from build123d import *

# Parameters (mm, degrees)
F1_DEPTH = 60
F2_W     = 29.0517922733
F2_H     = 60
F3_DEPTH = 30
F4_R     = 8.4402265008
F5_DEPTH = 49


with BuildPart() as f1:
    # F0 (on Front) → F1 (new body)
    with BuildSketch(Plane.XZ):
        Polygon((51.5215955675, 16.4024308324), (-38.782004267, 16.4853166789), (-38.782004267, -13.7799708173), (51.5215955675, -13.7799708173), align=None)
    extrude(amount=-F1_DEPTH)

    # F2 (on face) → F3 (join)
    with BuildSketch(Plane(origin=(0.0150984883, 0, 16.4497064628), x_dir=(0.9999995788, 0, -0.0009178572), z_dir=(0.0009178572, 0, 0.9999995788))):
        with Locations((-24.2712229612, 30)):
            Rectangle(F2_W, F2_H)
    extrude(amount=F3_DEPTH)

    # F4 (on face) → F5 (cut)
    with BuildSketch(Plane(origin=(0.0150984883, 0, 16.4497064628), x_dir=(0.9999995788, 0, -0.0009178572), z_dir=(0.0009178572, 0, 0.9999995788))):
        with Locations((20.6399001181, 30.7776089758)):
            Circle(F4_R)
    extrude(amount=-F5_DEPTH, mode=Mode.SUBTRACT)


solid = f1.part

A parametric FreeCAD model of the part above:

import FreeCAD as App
import Part
import Sketcher
from FreeCAD import Vector


def add_polygon(sketch, points):
    """Adds a closed chain of lines whose ends are joined by coincident constraints."""
    first, n = sketch.GeometryCount, len(points)
    for a, b in zip(points, points[1:] + points[:1]):
        sketch.addGeometry(Part.LineSegment(App.Vector(*a, 0), App.Vector(*b, 0)), False)
    for i in range(n):
        sketch.addConstraint(Sketcher.Constraint("Coincident", first + i, 2, first + (i + 1) % n, 1))

doc = App.newDocument("Part")
body = doc.addObject("PartDesign::Body", "Body")

sketch1 = body.newObject("Sketcher::SketchObject", "Sketch")
sketch1.AttachmentSupport = (doc.getObject("XZ_Plane"), [""])
sketch1.MapMode = "FlatFace"
add_polygon(sketch1, [(52, 16), (-39, 16), (-39, -14), (52, -14)])
sketch1.addConstraint([
    Sketcher.Constraint("Vertical", 1),
    Sketcher.Constraint("Horizontal", 2),
    Sketcher.Constraint("Vertical", 3),
    Sketcher.Constraint("DistanceX", 2, 1, 2, 2, 90.3036),
    Sketcher.Constraint("DistanceY", 3, 1, 3, 2, 30.182402),
    Sketcher.Constraint("DistanceY", 1, 2, 1, 1, 30.265287),
    Sketcher.Constraint("DistanceY", 1, 2, -1, 1, 13.779971),
    Sketcher.Constraint("DistanceX", 0, 2, -1, 1, 38.782004),
])
pad1 = body.newObject("PartDesign::Pad", "Pad")
pad1.Profile = sketch1
pad1.Length = 60
pad1.Reversed = True

sketch2 = body.newObject("Sketcher::SketchObject", "Sketch001")
sketch2.Placement = App.Placement(Vector(0.015098, 0, 16.449706), App.Rotation(Vector(0.999999579, 0, -0.000917857), Vector(0, 1, 0), Vector(0.000917857, 0, 0.999999579), "ZXY"))
add_polygon(sketch2, [(-39, 60), (-39, 0), (-10, 0), (-10, 60)])
sketch2.addConstraint([
    Sketcher.Constraint("Vertical", 0),
    Sketcher.Constraint("Horizontal", 1),
    Sketcher.Constraint("Vertical", 2),
    Sketcher.Constraint("Horizontal", 3),
    Sketcher.Constraint("PointOnObject", 0, 2, -1),
    Sketcher.Constraint("DistanceY", 0, 2, 0, 1, 60.0),
    Sketcher.Constraint("DistanceX", 1, 1, 1, 2, 29.051792),
    Sketcher.Constraint("DistanceX", 0, 2, -1, 1, 38.797119),
])
pad2 = body.newObject("PartDesign::Pad", "Pad001")
pad2.Profile = sketch2
pad2.Length = 30

sketch3 = body.newObject("Sketcher::SketchObject", "Sketch002")
sketch3.Placement = App.Placement(Vector(0.015098, 0, 16.449706), App.Rotation(Vector(0.999999579, 0, -0.000917857), Vector(0, 1, 0), Vector(0.000917857, 0, 0.999999579), "ZXY"))
sketch3.addGeometry(Part.Circle(Vector(21, 31, 0), Vector(0, 0, 1), 8), False)
sketch3.addConstraint([
    Sketcher.Constraint("Diameter", 0, 16.880453),
    Sketcher.Constraint("DistanceX", -1, 1, 0, 3, 20.6399),
    Sketcher.Constraint("DistanceY", -1, 1, 0, 3, 30.777609),
])
pocket1 = body.newObject("PartDesign::Pocket", "Pocket")
pocket1.Profile = sketch3
pocket1.Length = 49

doc.recompute()
